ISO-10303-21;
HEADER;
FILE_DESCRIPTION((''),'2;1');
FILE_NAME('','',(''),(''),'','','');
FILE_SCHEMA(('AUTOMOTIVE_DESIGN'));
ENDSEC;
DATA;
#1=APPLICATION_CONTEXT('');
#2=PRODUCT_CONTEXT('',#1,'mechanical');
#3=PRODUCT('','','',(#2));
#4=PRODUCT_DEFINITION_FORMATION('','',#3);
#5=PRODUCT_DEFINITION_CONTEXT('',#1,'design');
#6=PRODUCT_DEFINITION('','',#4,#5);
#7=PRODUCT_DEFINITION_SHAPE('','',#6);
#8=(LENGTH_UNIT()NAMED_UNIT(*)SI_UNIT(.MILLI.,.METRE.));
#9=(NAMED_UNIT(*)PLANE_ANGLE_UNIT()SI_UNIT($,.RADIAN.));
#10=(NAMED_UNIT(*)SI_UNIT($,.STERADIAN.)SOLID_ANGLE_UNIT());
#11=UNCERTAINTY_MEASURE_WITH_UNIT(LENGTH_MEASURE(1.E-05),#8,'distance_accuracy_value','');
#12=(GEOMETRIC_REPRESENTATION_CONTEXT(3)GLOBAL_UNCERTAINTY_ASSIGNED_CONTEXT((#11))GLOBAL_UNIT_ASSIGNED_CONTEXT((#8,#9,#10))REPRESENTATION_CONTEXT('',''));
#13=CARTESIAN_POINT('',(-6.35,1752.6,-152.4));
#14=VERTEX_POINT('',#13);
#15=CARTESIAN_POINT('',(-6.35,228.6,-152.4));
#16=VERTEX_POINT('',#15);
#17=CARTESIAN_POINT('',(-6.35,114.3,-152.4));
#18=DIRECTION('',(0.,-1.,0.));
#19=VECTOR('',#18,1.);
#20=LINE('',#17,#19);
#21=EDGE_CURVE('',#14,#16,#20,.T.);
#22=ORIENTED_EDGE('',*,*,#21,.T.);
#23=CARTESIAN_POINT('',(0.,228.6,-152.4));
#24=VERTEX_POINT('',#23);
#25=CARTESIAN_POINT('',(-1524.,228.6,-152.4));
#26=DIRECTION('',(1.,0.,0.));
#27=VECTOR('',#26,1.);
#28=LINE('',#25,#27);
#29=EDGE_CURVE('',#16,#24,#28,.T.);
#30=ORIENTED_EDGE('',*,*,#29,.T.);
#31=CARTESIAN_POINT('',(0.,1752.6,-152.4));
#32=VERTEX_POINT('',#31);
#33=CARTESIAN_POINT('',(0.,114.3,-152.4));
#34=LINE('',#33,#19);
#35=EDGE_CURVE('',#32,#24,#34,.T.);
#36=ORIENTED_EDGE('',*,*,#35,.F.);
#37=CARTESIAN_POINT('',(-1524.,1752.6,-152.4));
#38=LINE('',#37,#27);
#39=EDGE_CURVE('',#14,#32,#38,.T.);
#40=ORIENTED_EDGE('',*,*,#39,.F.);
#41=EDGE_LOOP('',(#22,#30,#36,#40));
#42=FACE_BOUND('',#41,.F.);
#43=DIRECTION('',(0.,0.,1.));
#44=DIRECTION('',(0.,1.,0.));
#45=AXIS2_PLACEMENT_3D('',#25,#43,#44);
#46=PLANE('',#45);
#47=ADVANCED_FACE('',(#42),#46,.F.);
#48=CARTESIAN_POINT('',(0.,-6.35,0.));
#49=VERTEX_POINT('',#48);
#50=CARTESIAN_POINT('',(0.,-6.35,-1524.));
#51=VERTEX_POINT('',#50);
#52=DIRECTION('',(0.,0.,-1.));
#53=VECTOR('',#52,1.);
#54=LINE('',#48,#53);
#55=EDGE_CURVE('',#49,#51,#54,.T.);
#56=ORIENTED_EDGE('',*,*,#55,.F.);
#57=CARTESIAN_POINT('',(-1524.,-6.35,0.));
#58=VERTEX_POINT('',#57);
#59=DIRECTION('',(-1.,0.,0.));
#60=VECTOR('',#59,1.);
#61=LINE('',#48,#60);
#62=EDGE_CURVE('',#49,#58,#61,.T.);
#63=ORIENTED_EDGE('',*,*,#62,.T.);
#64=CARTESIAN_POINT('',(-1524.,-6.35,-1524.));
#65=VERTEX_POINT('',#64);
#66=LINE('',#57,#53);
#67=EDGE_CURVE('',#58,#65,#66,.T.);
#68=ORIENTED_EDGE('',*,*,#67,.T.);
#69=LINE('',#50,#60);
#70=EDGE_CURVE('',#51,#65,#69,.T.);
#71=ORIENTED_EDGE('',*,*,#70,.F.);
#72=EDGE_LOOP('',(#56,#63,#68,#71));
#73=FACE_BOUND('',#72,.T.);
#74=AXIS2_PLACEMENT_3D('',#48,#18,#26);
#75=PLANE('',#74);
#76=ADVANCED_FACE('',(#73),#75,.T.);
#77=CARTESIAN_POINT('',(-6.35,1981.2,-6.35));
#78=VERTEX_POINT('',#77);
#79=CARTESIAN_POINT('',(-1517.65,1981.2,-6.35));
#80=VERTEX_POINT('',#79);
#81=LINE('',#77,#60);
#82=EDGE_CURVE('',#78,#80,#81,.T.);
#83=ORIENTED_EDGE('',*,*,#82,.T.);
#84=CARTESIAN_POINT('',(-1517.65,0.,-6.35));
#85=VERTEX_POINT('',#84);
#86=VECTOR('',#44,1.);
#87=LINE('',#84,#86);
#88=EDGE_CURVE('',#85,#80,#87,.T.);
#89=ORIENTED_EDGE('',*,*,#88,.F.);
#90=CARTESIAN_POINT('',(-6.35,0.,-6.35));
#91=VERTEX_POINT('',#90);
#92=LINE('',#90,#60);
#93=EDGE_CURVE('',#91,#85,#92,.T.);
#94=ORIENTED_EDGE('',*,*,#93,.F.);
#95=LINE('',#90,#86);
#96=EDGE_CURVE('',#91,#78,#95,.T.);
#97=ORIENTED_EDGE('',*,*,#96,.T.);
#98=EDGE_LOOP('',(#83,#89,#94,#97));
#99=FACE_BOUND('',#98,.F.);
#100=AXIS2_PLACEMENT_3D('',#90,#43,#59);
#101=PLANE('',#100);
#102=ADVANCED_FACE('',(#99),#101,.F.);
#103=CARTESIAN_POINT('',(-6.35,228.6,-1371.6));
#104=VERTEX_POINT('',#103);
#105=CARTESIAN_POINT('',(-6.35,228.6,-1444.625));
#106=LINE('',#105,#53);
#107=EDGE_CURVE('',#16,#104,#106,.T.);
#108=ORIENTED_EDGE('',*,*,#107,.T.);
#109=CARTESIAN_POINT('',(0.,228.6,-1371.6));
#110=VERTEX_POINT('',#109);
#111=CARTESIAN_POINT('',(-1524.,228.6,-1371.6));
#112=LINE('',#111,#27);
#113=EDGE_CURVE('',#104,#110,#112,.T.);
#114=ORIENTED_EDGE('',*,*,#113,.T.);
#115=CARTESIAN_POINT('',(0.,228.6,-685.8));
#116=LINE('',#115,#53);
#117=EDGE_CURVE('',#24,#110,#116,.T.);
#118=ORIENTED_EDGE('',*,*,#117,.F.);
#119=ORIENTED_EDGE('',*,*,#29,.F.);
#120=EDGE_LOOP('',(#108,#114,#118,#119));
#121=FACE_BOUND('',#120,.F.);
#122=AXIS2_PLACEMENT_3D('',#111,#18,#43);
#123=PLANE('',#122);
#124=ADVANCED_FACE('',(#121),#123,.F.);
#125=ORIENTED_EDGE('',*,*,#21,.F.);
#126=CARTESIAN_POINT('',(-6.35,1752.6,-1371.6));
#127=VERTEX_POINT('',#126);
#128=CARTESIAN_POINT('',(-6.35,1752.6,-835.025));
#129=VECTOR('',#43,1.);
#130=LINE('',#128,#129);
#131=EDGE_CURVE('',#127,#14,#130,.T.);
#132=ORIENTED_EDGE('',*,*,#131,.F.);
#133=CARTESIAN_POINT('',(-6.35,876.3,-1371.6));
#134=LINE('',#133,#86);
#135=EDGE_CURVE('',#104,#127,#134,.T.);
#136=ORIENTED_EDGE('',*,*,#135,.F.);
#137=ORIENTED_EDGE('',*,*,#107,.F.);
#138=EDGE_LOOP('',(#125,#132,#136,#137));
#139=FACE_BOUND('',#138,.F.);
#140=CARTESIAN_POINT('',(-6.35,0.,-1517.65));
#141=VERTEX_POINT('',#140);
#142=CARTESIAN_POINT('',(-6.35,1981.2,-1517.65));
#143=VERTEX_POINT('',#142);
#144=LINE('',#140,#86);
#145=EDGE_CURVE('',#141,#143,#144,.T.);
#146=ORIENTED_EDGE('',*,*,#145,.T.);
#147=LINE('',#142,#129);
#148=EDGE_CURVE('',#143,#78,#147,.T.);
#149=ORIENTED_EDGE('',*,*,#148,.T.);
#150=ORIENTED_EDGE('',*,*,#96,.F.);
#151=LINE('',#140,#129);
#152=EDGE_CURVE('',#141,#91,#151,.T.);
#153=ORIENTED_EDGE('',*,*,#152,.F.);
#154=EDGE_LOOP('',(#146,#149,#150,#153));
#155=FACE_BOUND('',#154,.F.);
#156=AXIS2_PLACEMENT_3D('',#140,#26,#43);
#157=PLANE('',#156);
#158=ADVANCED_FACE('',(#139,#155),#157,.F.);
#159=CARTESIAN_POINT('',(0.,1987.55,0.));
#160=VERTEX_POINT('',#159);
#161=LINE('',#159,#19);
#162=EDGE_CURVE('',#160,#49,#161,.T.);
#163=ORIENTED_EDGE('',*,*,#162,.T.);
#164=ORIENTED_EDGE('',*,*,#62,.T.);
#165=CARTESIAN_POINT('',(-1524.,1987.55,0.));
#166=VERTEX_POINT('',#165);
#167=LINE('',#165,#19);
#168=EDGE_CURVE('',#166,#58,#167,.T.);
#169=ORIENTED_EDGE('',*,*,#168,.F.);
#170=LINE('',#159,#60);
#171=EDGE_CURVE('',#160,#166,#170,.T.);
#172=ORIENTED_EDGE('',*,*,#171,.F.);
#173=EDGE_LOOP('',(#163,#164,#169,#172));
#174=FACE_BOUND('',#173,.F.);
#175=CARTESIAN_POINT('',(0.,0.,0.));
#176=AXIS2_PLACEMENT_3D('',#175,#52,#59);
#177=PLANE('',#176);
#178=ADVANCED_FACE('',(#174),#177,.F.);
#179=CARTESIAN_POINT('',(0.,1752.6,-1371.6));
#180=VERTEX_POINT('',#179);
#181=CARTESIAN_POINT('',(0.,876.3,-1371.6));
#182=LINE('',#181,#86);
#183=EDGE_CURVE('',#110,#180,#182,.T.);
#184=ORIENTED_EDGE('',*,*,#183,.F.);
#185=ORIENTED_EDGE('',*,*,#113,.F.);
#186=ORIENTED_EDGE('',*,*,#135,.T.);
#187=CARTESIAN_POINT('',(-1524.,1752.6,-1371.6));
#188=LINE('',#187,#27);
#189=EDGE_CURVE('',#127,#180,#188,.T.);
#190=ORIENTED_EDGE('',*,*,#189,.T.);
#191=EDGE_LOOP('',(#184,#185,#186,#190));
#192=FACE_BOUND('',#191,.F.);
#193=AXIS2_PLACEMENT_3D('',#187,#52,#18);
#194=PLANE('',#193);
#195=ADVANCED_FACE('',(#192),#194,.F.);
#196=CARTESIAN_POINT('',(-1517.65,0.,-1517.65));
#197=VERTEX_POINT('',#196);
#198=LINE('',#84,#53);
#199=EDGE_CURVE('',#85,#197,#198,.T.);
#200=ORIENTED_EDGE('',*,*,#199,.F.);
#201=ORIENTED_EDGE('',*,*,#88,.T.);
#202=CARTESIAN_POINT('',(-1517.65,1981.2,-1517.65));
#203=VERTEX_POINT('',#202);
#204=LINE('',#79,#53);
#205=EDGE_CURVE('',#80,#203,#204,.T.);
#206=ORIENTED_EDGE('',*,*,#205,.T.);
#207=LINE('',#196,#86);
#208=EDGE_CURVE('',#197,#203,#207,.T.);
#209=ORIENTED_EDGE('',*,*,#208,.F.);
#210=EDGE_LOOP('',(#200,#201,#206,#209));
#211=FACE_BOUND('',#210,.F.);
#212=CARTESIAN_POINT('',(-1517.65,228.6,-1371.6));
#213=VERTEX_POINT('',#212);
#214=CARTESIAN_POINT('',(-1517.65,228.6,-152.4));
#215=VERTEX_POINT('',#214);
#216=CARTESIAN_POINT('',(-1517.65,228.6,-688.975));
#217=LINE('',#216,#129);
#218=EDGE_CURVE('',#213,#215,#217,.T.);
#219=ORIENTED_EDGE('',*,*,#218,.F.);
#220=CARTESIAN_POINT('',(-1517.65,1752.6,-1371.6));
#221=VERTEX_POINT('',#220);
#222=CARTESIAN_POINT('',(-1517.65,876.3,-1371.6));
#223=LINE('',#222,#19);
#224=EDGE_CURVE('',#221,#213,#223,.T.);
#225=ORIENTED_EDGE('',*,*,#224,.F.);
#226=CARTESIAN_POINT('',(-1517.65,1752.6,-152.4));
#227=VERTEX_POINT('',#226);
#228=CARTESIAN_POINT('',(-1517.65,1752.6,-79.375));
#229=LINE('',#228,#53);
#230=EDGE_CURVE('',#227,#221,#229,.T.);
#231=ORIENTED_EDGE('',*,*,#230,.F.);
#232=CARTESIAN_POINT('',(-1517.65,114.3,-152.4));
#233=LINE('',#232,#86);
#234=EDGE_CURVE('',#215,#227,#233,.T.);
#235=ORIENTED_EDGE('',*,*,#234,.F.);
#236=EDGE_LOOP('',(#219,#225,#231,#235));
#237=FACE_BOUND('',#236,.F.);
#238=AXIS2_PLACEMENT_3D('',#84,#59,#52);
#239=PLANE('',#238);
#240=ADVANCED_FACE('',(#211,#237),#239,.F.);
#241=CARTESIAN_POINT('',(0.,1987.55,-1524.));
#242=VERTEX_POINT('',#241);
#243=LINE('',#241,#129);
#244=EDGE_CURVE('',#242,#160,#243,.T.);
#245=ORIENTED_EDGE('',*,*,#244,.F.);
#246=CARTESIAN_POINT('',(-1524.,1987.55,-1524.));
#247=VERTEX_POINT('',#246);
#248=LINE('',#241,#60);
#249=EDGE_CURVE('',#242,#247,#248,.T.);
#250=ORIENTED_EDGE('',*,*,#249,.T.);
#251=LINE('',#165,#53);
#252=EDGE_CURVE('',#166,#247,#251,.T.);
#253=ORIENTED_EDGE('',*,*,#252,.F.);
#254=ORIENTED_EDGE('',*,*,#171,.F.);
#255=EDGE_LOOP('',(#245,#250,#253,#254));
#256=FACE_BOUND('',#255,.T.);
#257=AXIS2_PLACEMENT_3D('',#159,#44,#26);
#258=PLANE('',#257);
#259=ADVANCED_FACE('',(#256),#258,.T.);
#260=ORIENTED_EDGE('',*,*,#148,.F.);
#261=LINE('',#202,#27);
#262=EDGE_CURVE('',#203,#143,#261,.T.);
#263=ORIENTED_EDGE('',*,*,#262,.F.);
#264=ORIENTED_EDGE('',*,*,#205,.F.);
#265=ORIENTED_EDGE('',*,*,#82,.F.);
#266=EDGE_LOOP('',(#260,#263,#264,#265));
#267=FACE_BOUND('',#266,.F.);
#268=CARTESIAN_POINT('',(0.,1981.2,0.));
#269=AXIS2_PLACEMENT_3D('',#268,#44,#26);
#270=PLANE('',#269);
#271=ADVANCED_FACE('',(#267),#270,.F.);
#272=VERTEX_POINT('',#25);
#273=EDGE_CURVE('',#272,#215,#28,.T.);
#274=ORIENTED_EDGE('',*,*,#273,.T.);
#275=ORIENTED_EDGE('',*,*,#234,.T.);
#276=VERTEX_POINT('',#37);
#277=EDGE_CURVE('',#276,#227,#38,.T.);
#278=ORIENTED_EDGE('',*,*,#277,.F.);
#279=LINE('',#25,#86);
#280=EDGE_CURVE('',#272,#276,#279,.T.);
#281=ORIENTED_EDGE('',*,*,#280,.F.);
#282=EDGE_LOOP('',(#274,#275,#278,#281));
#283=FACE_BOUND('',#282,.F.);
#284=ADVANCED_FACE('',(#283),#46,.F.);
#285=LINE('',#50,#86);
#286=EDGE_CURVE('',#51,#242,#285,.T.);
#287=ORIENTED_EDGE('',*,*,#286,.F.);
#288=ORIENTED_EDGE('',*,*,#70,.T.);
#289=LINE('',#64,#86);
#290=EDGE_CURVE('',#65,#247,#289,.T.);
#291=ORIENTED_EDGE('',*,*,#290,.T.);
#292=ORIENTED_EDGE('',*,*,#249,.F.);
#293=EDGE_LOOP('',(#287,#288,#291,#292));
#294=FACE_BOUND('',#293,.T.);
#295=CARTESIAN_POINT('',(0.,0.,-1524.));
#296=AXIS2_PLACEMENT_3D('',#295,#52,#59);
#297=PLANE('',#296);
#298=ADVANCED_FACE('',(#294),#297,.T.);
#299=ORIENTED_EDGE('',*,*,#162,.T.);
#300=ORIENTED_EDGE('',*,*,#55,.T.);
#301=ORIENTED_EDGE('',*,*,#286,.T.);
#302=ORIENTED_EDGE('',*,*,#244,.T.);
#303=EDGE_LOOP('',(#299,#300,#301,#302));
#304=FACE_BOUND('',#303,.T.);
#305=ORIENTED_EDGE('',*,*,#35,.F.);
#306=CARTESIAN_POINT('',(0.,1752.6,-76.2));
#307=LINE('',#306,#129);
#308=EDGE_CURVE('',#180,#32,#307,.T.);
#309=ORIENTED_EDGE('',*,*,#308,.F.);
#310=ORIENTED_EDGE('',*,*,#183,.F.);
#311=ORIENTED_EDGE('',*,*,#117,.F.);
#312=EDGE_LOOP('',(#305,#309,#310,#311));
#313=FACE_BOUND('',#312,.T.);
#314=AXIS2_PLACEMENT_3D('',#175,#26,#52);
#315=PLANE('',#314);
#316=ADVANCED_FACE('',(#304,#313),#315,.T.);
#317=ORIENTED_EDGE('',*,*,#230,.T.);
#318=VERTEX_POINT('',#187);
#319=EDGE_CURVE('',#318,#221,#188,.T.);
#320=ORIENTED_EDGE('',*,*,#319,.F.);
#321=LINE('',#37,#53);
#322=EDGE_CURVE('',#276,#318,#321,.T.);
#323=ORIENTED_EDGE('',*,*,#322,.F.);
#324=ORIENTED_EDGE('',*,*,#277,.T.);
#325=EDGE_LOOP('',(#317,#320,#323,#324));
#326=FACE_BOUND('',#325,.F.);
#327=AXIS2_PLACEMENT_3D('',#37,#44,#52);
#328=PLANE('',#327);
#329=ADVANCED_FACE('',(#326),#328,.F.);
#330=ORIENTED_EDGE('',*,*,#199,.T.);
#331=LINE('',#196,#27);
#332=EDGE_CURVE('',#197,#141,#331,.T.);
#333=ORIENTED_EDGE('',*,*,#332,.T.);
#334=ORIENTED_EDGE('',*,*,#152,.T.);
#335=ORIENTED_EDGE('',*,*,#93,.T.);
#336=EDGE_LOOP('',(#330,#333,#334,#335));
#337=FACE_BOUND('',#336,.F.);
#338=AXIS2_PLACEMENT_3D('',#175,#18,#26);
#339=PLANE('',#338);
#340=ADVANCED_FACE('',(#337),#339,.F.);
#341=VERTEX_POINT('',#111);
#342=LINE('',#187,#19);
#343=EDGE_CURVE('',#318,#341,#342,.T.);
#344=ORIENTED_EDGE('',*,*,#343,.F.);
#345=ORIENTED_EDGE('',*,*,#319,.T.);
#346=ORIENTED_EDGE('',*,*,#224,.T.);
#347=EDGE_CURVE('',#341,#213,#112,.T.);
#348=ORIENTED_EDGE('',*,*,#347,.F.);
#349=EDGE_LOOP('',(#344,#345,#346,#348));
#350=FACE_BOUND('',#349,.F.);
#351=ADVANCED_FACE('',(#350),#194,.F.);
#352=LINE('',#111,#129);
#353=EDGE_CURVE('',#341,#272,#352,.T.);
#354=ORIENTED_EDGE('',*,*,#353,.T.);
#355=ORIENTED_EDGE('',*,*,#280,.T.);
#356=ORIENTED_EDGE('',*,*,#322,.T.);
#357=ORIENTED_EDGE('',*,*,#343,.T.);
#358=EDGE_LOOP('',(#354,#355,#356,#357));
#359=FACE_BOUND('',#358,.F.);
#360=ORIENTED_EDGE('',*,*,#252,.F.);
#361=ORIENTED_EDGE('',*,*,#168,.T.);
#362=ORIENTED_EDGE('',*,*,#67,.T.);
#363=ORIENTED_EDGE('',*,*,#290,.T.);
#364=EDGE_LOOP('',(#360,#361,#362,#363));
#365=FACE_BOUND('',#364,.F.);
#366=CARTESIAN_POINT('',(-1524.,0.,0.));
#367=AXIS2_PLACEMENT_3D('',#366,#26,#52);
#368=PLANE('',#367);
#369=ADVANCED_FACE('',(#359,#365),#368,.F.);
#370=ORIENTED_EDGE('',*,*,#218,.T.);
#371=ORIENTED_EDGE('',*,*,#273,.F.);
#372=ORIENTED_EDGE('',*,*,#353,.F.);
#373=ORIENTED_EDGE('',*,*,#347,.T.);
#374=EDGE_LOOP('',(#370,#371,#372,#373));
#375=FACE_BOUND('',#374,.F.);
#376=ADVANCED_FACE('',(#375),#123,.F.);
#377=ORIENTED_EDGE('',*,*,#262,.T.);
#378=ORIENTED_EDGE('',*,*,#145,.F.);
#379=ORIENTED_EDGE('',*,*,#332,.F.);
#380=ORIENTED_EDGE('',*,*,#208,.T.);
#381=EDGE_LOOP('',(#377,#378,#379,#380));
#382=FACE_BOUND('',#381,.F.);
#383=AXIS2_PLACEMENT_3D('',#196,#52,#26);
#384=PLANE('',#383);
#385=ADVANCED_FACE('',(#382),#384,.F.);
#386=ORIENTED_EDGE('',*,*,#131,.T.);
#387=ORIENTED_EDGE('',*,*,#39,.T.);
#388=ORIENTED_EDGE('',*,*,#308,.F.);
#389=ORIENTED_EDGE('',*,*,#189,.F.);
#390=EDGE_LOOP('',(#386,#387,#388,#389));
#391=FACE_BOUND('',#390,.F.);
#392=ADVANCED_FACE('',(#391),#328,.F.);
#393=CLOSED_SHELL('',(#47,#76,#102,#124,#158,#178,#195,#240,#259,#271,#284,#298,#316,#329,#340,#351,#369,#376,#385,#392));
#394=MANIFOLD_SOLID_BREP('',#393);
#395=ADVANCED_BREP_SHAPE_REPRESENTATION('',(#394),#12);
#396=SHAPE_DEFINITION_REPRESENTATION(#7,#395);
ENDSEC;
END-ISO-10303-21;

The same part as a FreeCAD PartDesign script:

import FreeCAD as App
import Part
import Sketcher
from FreeCAD import Vector
Q = App.Units.Quantity


def add_polygon(sketch, points):
    """Adds a closed chain of lines whose ends are joined by coincident constraints."""
    first, n = sketch.GeometryCount, len(points)
    for a, b in zip(points, points[1:] + points[:1]):
        sketch.addGeometry(Part.LineSegment(App.Vector(*a, 0), App.Vector(*b, 0)), False)
    for i in range(n):
        sketch.addConstraint(Sketcher.Constraint("Coincident", first + i, 2, first + (i + 1) % n, 1))

doc = App.newDocument("Part")
body = doc.addObject("PartDesign::Body", "Body")

sketch1 = doc.addObject("Sketcher::SketchObject", "Sketch")
body.addObject(sketch1)
sketch1.AttachmentSupport = (doc.XZ_Plane, [""])
sketch1.MapMode = "FlatFace"
add_polygon(sketch1, [(-1524, 0), (0, 0), (0, -1524), (-1524, -1524)])
add_polygon(sketch1, [(-1517.65, -6.35), (-1517.65, -1517.65), (-6.35, -1517.65), (-6.35, -6.35)])
sketch1.addConstraint(Sketcher.Constraint("Horizontal", 0))
sketch1.addConstraint(Sketcher.Constraint("Vertical", 1))
sketch1.addConstraint(Sketcher.Constraint("Horizontal", 2))
sketch1.addConstraint(Sketcher.Constraint("Vertical", 3))
sketch1.addConstraint(Sketcher.Constraint("Vertical", 4))
sketch1.addConstraint(Sketcher.Constraint("Horizontal", 5))
sketch1.addConstraint(Sketcher.Constraint("Vertical", 6))
sketch1.addConstraint(Sketcher.Constraint("Horizontal", 7))
sketch1.addConstraint(Sketcher.Constraint("Coincident", 0, 2, -1, 1))
sketch1.addConstraint(Sketcher.Constraint("Equal", 2, 1))
sketch1.addConstraint(Sketcher.Constraint("Equal", 7, 4))
sketch1.addConstraint(Sketcher.Constraint("DistanceX", 0, 1, 0, 2, Q("60 in")))
sketch1.addConstraint(Sketcher.Constraint("DistanceX", 5, 2, -1, 1, Q("0.25 in")))
sketch1.addConstraint(Sketcher.Constraint("DistanceY", 6, 2, -1, 1, Q("0.25 in")))
sketch1.addConstraint(Sketcher.Constraint("DistanceX", 2, 2, 4, 2, Q("0.25 in")))
pad1 = doc.addObject("PartDesign::Pad", "Pad")
body.addObject(pad1)
pad1.Profile = sketch1
pad1.Length = Q("78 in")
pad1.Reversed = True

sketch2 = doc.addObject("Sketcher::SketchObject", "Sketch001")
body.addObject(sketch2)
sketch2.AttachmentSupport = (doc.XZ_Plane, [""])
sketch2.MapMode = "FlatFace"
sketch2.AttachmentOffset = App.Placement(Vector(0, 0, -78 * 25.4), App.Rotation())
add_polygon(sketch2, [(0, 0), (0, -1524), (-1524, -1524), (-1524, 0)])
sketch2.addConstraint(Sketcher.Constraint("Vertical", 0))
sketch2.addConstraint(Sketcher.Constraint("Horizontal", 1))
sketch2.addConstraint(Sketcher.Constraint("Vertical", 2))
sketch2.addConstraint(Sketcher.Constraint("Horizontal", 3))
sketch2.addConstraint(Sketcher.Constraint("Coincident", 3, 2, -1, 1))
sketch2.addConstraint(Sketcher.Constraint("Equal", 3, 0))
sketch2.addConstraint(Sketcher.Constraint("DistanceX", 1, 2, 1, 1, Q("60 in")))
pad2 = doc.addObject("PartDesign::Pad", "Pad001")
body.addObject(pad2)
pad2.Profile = sketch2
pad2.Length = Q("0.25 in")
pad2.Reversed = True

sketch3 = doc.addObject("Sketcher::SketchObject", "Sketch002")
body.addObject(sketch3)
sketch3.AttachmentSupport = (doc.XZ_Plane, [""])
sketch3.MapMode = "FlatFace"
add_polygon(sketch3, [(0, -1524), (0, 0), (-1524, 0), (-1524, -1524)])
sketch3.addConstraint(Sketcher.Constraint("Vertical", 0))
sketch3.addConstraint(Sketcher.Constraint("Horizontal", 1))
sketch3.addConstraint(Sketcher.Constraint("Vertical", 2))
sketch3.addConstraint(Sketcher.Constraint("Horizontal", 3))
sketch3.addConstraint(Sketcher.Constraint("Coincident", 0, 2, -1, 1))
sketch3.addConstraint(Sketcher.Constraint("Equal", 3, 0))
sketch3.addConstraint(Sketcher.Constraint("DistanceX", 1, 2, 1, 1, Q("60 in")))
pad3 = doc.addObject("PartDesign::Pad", "Pad002")
body.addObject(pad3)
pad3.Profile = sketch3
pad3.Length = Q("0.25 in")

sketch4 = doc.addObject("Sketcher::SketchObject", "Sketch003")
body.addObject(sketch4)
sketch4.AttachmentSupport = (doc.YZ_Plane, [""])
sketch4.MapMode = "FlatFace"
sketch4.AttachmentOffset = App.Placement(Vector(0, 0, -60 * 25.4), App.Rotation())
add_polygon(sketch4, [(228.6, -152.4), (1752.6, -152.4), (1752.6, -1371.6), (228.6, -1371.6)])
sketch4.addConstraint(Sketcher.Constraint("Horizontal", 0))
sketch4.addConstraint(Sketcher.Constraint("Vertical", 1))
sketch4.addConstraint(Sketcher.Constraint("Horizontal", 2))
sketch4.addConstraint(Sketcher.Constraint("Vertical", 3))
sketch4.addConstraint(Sketcher.Constraint("DistanceX", 0, 1, 0, 2, Q("60 in")))
sketch4.addConstraint(Sketcher.Constraint("DistanceY", 1, 2, 1, 1, Q("48 in")))
sketch4.addConstraint(Sketcher.Constraint("DistanceY", 0, 2, -1, 1, Q("6 in")))
sketch4.addConstraint(Sketcher.Constraint("DistanceX", -1, 1, 0, 2, Q("69 in")))
pocket1 = doc.addObject("PartDesign::Pocket", "Pocket")
body.addObject(pocket1)
pocket1.Profile = sketch4
pocket1.Type = "ThroughAll"
pocket1.Reversed = True

doc.recompute()
